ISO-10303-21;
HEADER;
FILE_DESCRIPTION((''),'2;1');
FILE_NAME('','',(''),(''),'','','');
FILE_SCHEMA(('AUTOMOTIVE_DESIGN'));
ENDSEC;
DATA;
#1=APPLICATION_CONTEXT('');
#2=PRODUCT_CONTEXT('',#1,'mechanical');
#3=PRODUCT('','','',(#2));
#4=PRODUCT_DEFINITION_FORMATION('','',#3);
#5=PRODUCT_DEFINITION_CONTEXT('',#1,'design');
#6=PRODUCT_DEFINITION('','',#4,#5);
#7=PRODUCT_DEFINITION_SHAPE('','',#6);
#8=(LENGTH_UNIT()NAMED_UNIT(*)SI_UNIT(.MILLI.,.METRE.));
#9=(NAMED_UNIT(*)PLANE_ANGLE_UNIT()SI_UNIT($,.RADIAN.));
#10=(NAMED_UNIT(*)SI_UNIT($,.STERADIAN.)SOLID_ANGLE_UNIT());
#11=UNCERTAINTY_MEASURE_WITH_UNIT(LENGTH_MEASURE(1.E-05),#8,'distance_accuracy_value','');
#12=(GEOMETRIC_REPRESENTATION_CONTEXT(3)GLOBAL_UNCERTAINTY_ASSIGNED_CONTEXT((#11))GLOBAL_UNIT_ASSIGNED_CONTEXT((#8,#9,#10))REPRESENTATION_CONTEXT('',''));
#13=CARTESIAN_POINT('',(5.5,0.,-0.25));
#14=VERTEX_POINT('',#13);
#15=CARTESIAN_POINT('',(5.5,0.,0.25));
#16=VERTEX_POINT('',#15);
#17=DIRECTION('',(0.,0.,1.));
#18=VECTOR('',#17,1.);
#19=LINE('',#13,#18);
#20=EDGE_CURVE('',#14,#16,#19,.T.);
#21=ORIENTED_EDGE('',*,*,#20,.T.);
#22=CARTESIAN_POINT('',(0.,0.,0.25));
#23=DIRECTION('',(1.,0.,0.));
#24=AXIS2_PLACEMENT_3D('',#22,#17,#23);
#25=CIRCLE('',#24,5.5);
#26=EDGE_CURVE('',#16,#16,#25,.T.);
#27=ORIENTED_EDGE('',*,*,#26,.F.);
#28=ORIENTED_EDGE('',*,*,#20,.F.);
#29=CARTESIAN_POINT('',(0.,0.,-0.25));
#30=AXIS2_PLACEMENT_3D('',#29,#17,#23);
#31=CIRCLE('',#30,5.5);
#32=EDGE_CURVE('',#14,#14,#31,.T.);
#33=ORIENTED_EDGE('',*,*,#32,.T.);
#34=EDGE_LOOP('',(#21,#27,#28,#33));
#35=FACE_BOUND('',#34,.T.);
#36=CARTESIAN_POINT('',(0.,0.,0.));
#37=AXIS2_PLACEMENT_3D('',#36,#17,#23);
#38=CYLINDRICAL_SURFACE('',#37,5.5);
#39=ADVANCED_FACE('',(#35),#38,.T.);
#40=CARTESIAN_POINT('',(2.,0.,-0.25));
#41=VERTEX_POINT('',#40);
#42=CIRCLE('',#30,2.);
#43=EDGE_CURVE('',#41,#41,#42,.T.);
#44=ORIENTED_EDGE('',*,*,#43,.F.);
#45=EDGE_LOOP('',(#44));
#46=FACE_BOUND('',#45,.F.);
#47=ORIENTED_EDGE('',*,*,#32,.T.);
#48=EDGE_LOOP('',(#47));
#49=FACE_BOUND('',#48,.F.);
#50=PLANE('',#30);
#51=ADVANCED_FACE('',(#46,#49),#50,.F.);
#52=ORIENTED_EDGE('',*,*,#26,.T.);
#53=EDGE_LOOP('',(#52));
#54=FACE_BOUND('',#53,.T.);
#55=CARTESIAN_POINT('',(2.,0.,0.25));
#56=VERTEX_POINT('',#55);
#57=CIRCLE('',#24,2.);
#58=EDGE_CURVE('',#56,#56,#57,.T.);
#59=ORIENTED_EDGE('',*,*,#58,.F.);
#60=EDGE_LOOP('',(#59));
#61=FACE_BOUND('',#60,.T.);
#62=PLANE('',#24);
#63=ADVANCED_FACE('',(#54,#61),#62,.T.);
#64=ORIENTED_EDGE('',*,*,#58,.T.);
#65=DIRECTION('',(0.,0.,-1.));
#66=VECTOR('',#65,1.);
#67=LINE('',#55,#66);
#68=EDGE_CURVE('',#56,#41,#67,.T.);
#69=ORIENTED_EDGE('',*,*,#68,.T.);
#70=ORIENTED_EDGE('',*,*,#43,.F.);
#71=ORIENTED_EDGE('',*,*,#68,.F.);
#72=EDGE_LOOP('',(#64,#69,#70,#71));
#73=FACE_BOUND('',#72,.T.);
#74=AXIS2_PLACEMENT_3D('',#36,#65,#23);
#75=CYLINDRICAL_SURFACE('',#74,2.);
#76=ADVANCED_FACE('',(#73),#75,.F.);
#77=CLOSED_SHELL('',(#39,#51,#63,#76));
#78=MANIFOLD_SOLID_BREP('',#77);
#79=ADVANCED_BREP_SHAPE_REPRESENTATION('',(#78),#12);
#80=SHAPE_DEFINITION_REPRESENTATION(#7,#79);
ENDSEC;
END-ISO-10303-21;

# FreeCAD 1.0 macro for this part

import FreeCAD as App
import Part
import Sketcher

doc = App.newDocument("Part")
body = doc.addObject("PartDesign::Body", "Body")

# Sketch on XY plane
sketch1 = body.newObject("Sketcher::SketchObject", "Sketch")
sketch1.AttachmentSupport = (doc.getObject("XY_Plane"), [""])
sketch1.MapMode = "FlatFace"
sketch1.addGeometry(Part.Circle(App.Vector(0, 0, 0), App.Vector(0, 0, 1), 5.5), False)
sketch1.addGeometry(Part.Circle(App.Vector(0, 0, 0), App.Vector(0, 0, 1), 2), False)
sketch1.addConstraint(Sketcher.Constraint("Coincident", 0, 3, -1, 1))
sketch1.addConstraint(Sketcher.Constraint("Coincident", 1, 3, -1, 1))
sketch1.addConstraint(Sketcher.Constraint("Diameter", 0, 11.0))
sketch1.addConstraint(Sketcher.Constraint("Diameter", 1, 4.0))
pad1 = body.newObject("PartDesign::Pad", "Pad")
pad1.Profile = sketch1
pad1.Length = 0.5
pad1.Midplane = True

doc.recompute()
